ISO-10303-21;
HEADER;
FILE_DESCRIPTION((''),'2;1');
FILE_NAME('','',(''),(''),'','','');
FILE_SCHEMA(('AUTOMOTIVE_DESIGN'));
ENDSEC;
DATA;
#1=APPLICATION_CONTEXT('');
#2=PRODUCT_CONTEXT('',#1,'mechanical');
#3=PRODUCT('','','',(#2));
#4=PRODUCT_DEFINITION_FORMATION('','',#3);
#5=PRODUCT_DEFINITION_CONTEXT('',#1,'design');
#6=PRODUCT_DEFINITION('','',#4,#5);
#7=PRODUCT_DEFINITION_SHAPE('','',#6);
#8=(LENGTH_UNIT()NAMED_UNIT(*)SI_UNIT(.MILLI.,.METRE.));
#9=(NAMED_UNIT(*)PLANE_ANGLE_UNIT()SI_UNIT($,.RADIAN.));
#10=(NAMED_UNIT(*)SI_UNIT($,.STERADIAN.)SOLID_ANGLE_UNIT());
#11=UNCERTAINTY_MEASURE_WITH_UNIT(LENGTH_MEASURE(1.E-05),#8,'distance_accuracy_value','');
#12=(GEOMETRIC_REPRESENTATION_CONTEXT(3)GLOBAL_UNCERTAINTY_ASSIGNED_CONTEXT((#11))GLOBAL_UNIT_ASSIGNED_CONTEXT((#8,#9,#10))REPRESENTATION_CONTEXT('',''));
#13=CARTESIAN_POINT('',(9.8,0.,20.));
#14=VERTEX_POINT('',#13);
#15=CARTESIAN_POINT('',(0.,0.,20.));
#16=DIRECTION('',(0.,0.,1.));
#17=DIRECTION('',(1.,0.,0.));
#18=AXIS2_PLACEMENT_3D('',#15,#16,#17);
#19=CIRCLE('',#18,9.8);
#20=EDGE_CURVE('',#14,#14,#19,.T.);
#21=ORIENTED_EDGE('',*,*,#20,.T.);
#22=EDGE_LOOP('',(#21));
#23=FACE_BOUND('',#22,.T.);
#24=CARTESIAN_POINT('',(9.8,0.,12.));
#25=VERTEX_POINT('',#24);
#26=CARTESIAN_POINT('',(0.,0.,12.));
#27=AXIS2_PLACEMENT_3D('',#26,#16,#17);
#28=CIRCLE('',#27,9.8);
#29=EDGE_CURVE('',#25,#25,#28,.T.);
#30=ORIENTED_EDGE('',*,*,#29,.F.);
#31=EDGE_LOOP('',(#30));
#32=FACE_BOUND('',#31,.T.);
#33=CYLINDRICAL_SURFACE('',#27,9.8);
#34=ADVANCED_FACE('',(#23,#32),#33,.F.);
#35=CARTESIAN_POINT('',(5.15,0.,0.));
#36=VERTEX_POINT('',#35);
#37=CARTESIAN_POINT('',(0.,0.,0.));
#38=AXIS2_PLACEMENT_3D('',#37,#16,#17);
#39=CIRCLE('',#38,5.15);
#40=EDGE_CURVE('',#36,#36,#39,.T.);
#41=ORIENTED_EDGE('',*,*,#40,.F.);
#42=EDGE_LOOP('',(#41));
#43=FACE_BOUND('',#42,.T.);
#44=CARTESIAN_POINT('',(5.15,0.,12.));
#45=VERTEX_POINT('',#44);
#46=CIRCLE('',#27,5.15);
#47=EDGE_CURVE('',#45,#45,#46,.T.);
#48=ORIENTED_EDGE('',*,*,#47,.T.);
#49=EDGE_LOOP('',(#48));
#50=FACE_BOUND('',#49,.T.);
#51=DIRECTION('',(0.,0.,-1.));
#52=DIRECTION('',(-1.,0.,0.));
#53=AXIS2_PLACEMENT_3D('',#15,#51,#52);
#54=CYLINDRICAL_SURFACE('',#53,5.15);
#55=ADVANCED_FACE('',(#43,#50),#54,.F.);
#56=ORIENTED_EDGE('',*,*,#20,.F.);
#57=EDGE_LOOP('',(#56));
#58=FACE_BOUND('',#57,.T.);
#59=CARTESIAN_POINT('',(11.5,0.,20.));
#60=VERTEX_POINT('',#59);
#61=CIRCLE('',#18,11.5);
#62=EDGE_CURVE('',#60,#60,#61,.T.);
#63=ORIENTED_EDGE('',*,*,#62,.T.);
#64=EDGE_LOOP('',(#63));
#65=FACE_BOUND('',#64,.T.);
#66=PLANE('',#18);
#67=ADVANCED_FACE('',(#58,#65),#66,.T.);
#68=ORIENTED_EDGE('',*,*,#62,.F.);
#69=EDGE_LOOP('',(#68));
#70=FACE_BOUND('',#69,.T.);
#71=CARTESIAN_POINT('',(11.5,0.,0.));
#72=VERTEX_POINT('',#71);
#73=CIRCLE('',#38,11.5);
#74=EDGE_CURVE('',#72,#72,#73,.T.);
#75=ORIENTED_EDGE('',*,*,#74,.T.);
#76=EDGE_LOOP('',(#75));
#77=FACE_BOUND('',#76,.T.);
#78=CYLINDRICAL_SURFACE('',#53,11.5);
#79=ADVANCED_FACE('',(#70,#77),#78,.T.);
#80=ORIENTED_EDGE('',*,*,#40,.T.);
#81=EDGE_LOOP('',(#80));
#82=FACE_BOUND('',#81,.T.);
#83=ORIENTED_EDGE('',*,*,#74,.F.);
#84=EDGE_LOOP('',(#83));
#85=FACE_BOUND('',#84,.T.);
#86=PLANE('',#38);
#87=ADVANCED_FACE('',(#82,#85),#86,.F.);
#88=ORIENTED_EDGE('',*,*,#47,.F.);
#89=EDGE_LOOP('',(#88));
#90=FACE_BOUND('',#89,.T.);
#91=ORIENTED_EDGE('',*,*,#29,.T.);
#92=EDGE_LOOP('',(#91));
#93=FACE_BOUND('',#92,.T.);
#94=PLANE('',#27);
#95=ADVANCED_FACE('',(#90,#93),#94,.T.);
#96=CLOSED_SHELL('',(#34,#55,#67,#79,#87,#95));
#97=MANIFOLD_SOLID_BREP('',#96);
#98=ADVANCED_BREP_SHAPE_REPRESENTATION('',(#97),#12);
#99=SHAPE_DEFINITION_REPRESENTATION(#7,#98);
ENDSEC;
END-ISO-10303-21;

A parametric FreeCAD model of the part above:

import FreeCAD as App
import Part
import Sketcher
from FreeCAD import Vector
Q = App.Units.Quantity

doc = App.newDocument("Part")
body = doc.addObject("PartDesign::Body", "Body")

# Sketch on XY plane
sketch1 = body.newObject("Sketcher::SketchObject", "Sketch")
sketch1.AttachmentSupport = (doc.getObject("XY_Plane"), [""])
sketch1.MapMode = "FlatFace"
sketch1.addGeometry(Part.Circle(Vector(0, 0, 0), Vector(0, 0, 1), 12), False)
sketch1.addGeometry(Part.Circle(Vector(0, 0, 0), Vector(0, 0, 1), 5), False)
sketch1.addConstraint(Sketcher.Constraint("Coincident", 0, 3, -1, 1))
sketch1.addConstraint(Sketcher.Constraint("Coincident", 1, 3, -1, 1))
sketch1.addConstraint(Sketcher.Constraint("Diameter", 0, Q("23 mm")))
sketch1.addConstraint(Sketcher.Constraint("Diameter", 1, Q("10.3 mm")))
pad1 = body.newObject("PartDesign::Pad", "Pad")
pad1.Profile = sketch1
pad1.Length = 20

# Sketch on XY plane
sketch2 = body.newObject("Sketcher::SketchObject", "Sketch001")
sketch2.AttachmentSupport = (doc.getObject("XY_Plane"), [""])
sketch2.MapMode = "FlatFace"
sketch2.AttachmentOffset = App.Placement(Vector(0, 0, 20), App.Rotation())
sketch2.addGeometry(Part.Circle(Vector(0, 0, 0), Vector(0, 0, 1), 10), False)
sketch2.addConstraint(Sketcher.Constraint("Coincident", 0, 3, -1, 1))
sketch2.addConstraint(Sketcher.Constraint("Diameter", 0, Q("19.6 mm")))
pocket1 = body.newObject("PartDesign::Pocket", "Pocket")
pocket1.Profile = sketch2
pocket1.Length = 8

doc.recompute()
